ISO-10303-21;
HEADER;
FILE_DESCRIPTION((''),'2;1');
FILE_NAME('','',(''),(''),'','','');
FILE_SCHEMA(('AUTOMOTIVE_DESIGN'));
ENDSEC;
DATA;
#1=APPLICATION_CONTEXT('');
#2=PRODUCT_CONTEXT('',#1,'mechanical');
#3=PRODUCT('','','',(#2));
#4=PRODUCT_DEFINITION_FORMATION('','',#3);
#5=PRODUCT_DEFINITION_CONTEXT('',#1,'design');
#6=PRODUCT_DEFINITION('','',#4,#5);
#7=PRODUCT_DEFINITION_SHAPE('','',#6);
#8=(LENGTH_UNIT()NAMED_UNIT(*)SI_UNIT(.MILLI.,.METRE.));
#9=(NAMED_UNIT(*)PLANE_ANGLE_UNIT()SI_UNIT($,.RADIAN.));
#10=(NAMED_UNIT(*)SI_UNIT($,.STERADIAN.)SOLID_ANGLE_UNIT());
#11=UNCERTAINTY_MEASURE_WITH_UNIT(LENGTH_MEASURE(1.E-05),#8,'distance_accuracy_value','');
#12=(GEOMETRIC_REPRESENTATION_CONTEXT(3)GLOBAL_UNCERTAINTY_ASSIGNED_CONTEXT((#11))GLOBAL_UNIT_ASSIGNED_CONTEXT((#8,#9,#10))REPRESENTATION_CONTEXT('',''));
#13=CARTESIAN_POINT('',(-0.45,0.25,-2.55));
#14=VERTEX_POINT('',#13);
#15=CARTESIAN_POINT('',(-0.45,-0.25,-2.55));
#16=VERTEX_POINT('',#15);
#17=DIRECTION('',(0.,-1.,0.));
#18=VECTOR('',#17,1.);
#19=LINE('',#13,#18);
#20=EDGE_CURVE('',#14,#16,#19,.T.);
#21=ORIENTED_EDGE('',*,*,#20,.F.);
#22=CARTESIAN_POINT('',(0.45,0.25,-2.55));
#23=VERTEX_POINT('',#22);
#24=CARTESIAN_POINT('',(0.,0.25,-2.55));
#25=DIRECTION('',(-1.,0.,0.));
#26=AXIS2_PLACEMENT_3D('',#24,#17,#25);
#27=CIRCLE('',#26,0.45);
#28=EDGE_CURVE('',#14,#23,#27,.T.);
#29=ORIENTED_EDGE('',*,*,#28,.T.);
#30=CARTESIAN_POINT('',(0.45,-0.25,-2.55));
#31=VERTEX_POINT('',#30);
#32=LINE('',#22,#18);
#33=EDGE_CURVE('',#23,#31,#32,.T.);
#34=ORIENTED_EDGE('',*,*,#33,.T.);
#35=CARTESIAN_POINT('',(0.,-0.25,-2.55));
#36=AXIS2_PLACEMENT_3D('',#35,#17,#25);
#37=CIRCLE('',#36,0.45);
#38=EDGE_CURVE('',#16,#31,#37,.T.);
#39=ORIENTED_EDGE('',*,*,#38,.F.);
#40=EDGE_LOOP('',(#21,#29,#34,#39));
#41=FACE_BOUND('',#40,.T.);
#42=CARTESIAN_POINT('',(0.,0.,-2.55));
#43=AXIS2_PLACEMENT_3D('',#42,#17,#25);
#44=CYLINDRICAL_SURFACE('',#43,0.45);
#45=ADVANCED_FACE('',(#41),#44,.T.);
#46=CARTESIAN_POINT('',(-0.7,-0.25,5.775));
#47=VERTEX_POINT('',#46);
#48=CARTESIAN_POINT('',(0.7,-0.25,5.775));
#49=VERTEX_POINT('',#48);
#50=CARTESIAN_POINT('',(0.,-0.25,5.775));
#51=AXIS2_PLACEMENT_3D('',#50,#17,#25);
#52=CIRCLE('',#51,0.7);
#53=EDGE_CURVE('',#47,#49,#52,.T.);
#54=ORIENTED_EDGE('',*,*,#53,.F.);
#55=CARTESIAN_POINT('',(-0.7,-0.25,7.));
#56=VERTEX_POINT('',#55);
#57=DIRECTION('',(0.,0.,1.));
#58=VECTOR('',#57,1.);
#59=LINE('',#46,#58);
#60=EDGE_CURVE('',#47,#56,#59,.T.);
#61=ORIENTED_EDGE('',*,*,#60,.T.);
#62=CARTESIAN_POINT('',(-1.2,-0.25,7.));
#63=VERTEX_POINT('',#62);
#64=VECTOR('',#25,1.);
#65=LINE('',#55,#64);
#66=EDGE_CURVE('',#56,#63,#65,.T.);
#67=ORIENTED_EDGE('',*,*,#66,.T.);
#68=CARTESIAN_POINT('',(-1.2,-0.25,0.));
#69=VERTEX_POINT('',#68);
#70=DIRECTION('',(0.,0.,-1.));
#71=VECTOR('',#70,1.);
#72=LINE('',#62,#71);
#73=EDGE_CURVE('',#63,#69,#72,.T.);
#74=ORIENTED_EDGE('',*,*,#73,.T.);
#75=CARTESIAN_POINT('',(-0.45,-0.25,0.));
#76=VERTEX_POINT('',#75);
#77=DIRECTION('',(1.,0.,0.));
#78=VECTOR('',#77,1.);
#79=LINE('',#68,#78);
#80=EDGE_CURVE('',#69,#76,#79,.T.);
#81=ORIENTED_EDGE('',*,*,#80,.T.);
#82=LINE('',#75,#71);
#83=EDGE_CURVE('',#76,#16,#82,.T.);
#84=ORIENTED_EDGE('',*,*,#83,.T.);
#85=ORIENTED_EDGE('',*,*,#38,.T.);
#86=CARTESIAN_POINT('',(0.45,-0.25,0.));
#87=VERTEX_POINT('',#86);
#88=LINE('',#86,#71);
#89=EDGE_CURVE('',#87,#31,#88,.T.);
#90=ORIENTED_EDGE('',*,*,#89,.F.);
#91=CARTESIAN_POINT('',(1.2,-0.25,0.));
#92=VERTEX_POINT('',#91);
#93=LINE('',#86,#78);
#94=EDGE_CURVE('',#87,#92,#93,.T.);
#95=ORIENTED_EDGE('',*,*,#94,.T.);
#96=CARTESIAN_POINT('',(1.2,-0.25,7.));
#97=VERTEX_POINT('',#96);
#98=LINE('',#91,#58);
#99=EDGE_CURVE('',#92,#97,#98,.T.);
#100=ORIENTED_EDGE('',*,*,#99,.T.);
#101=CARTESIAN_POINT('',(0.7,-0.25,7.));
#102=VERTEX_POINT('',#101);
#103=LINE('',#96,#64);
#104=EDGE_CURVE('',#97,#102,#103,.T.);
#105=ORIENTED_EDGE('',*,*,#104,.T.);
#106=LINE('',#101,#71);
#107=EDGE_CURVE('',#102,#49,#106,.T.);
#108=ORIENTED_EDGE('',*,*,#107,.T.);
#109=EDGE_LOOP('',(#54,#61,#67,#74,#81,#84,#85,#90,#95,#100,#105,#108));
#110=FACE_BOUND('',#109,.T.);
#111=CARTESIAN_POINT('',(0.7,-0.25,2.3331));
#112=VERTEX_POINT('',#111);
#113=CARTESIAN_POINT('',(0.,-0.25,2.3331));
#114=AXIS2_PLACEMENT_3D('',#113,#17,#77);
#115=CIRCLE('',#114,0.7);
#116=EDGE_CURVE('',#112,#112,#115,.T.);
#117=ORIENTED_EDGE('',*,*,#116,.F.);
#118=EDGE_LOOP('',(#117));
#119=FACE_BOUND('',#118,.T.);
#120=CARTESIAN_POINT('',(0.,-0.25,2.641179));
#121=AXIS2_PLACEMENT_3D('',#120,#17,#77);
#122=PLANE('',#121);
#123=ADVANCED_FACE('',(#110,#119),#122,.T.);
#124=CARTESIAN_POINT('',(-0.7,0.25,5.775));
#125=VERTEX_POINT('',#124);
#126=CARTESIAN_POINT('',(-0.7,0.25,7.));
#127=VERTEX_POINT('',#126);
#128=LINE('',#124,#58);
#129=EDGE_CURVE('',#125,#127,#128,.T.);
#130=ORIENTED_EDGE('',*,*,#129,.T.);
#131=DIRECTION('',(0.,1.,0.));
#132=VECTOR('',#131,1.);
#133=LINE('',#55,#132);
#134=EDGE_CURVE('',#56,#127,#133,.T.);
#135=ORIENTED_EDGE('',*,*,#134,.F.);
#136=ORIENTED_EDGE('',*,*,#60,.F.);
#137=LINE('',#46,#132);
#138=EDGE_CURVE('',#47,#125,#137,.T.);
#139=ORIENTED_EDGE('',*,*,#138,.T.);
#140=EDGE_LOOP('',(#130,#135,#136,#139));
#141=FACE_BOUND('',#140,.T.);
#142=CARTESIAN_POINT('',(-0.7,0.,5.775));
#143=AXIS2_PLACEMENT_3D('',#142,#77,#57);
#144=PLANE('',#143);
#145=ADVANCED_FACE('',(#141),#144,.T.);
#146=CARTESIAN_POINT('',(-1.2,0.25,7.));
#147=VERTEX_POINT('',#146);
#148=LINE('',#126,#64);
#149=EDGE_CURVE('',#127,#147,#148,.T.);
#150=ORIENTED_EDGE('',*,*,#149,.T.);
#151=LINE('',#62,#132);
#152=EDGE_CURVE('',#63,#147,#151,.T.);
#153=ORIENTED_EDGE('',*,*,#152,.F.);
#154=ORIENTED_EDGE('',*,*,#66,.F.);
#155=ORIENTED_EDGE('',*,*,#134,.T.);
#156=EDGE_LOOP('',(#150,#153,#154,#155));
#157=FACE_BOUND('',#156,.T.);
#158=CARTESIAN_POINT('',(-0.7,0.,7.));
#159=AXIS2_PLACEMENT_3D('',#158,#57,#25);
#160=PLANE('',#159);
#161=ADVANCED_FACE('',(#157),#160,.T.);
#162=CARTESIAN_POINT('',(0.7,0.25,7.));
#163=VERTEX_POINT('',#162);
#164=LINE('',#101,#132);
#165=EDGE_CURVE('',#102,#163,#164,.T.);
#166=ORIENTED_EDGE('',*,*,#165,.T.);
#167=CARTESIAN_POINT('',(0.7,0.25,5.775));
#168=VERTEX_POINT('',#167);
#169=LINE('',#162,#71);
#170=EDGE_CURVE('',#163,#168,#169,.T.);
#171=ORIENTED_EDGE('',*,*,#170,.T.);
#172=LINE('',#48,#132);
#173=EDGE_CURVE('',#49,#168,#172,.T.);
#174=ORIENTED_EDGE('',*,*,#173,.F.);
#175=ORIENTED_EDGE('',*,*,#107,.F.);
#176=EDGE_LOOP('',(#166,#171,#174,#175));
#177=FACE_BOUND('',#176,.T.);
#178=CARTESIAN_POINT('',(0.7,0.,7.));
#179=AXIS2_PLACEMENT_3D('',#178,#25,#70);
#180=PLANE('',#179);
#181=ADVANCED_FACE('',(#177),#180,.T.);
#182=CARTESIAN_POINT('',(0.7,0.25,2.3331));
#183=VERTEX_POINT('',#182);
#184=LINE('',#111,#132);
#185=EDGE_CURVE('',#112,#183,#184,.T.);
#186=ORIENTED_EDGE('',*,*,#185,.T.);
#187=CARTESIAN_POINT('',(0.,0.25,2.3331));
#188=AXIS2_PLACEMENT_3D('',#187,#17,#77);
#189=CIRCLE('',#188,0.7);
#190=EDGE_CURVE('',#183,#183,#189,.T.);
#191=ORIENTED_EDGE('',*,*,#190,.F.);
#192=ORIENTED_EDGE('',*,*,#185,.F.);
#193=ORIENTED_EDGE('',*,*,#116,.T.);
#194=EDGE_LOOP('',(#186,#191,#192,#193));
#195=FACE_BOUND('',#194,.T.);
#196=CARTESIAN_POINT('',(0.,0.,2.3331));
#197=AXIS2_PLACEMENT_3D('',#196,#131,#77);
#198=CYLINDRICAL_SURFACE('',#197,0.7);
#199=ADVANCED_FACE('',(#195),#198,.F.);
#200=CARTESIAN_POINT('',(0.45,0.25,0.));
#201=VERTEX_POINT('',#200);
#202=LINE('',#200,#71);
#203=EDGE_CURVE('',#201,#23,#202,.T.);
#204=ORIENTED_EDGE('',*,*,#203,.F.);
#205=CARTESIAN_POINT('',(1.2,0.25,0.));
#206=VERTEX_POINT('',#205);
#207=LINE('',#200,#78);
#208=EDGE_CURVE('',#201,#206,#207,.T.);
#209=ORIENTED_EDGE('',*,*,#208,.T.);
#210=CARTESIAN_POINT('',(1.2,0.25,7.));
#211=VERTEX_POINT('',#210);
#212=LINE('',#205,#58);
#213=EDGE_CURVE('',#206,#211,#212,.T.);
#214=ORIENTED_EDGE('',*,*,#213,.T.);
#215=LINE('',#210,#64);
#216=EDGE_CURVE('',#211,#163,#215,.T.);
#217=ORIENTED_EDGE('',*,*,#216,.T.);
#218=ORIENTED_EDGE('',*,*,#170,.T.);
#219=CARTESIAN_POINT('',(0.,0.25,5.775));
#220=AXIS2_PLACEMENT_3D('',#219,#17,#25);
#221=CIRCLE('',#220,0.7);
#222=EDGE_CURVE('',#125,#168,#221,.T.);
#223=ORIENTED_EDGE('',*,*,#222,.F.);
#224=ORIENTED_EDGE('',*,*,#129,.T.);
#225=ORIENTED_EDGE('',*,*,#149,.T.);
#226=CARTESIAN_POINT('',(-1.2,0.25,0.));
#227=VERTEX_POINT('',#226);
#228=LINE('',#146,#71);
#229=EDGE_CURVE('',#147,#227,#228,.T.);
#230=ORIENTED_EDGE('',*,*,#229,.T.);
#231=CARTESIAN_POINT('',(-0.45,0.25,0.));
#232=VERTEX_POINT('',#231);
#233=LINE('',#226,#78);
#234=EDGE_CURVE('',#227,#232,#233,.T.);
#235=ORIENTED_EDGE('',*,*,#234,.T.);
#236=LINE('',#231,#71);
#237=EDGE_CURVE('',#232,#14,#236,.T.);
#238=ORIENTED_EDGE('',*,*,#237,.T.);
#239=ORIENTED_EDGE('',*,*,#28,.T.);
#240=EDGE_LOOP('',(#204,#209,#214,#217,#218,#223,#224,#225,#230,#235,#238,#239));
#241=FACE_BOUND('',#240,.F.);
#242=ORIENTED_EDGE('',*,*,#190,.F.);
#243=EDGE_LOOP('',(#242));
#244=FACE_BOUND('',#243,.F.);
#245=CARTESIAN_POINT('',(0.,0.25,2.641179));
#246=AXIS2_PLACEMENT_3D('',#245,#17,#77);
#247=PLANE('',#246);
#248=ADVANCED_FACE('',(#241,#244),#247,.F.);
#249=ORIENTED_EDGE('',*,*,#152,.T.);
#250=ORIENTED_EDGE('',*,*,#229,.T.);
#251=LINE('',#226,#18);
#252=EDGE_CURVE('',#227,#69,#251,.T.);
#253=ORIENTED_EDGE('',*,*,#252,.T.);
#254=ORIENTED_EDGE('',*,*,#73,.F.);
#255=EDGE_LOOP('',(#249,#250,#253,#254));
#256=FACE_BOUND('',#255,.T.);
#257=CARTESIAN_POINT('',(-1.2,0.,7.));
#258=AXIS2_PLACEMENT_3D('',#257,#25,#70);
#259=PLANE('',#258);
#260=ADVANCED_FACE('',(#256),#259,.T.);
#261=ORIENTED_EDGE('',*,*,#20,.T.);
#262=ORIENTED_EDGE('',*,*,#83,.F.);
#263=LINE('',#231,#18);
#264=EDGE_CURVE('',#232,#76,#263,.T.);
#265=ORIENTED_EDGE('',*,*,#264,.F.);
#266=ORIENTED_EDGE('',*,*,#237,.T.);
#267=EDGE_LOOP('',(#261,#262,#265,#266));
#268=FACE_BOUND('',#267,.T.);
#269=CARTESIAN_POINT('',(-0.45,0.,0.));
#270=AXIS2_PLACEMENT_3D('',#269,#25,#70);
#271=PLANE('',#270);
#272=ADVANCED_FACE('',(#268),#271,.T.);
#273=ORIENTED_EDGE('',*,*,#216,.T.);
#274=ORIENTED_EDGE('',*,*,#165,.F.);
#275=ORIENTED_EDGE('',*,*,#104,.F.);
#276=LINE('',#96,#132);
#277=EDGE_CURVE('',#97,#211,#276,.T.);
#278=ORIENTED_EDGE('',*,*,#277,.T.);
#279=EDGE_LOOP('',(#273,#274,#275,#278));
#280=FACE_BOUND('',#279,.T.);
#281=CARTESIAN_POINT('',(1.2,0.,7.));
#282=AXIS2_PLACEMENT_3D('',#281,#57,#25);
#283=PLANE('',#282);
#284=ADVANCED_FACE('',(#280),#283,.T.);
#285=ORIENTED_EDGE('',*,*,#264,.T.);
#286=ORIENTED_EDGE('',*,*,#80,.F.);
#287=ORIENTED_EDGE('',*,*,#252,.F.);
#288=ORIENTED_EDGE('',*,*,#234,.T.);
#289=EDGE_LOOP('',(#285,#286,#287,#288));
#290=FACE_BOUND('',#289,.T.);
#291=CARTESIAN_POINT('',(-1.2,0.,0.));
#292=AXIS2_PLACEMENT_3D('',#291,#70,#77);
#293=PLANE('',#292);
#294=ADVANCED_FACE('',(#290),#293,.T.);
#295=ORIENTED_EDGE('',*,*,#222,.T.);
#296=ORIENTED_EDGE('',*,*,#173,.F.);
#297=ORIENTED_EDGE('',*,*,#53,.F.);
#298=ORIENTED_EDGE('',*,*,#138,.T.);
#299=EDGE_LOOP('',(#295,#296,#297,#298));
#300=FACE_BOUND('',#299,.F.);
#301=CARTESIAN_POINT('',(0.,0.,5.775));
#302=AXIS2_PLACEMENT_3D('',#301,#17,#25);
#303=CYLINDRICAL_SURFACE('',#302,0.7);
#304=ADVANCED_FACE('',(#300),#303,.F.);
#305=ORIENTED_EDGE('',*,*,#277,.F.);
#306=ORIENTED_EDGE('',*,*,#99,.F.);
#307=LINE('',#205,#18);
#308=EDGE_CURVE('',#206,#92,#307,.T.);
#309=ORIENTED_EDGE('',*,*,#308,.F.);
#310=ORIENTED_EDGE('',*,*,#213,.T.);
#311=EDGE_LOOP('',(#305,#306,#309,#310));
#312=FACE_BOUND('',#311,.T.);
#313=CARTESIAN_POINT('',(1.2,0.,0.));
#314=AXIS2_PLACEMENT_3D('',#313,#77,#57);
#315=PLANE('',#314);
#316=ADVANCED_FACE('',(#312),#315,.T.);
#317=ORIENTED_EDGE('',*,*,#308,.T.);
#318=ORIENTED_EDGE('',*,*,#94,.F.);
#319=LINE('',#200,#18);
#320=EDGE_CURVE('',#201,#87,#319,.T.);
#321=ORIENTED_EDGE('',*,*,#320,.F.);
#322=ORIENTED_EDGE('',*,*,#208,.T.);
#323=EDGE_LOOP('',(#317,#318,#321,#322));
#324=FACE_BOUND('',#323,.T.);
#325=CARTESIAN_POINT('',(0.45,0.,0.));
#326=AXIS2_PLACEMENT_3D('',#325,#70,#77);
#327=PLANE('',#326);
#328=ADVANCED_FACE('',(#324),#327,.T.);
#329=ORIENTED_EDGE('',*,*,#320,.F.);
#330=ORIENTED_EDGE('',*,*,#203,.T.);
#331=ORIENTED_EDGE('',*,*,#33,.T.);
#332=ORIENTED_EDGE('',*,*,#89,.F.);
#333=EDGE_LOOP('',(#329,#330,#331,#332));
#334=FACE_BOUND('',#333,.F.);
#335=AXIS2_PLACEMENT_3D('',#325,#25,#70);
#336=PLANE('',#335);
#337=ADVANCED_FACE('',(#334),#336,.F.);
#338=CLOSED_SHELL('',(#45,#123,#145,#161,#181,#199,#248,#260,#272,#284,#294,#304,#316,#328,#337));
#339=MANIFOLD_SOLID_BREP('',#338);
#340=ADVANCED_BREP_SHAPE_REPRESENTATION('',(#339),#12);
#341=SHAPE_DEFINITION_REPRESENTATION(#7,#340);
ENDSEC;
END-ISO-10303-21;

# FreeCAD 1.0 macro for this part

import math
import FreeCAD as App
import Part
import Sketcher
from FreeCAD import Vector

doc = App.newDocument("Part")
body = doc.addObject("PartDesign::Body", "Body")

# Sketch on XZ plane
sketch1 = body.newObject("Sketcher::SketchObject", "Sketch")
sketch1.AttachmentSupport = (doc.getObject("XZ_Plane"), [""])
sketch1.MapMode = "FlatFace"
sketch1.addGeometry([
    Part.LineSegment(Vector(-1.2, 7, 0), Vector(-1.2, 0, 0)),  # 0
    Part.LineSegment(Vector(-1.2, 0, 0), Vector(-0.45, 0, 0)),  # 1
    Part.LineSegment(Vector(-0.45, 0, 0), Vector(-0.45, -2.55, 0)),  # 2
    Part.ArcOfCircle(Part.Circle(Vector(0, -2.55, 0), Vector(0, 0, 1), 0.45), math.radians(180), math.radians(360)),  # 3
    Part.LineSegment(Vector(0.45, -2.55, 0), Vector(0.45, 0, 0)),  # 4
    Part.LineSegment(Vector(0.45, 0, 0), Vector(1.2, 0, 0)),  # 5
    Part.LineSegment(Vector(1.2, 0, 0), Vector(1.2, 7, 0)),  # 6
    Part.LineSegment(Vector(1.2, 7, 0), Vector(0.7, 7, 0)),  # 7
    Part.LineSegment(Vector(0.7, 7, 0), Vector(0.7, 5.78, 0)),  # 8
    Part.ArcOfCircle(Part.Circle(Vector(0, 5.78, 0), Vector(0, 0, 1), 0.7), math.radians(180), math.radians(360)),  # 9
    Part.LineSegment(Vector(-0.7, 5.78, 0), Vector(-0.7, 7, 0)),  # 10
    Part.LineSegment(Vector(-0.7, 7, 0), Vector(-1.2, 7, 0)),  # 11
    Part.Circle(Vector(0, 2.33, 0), Vector(0, 0, 1), 0.7),  # 12
], False)
sketch1.addConstraint([
    Sketcher.Constraint("Coincident", 0, 2, 1, 1),
    Sketcher.Constraint("Coincident", 1, 2, 2, 1),
    Sketcher.Constraint("Tangent", 2, 2, 3, 1),
    Sketcher.Constraint("Tangent", 3, 2, 4, 1),
    Sketcher.Constraint("Coincident", 4, 2, 5, 1),
    Sketcher.Constraint("Coincident", 5, 2, 6, 1),
    Sketcher.Constraint("Coincident", 6, 2, 7, 1),
    Sketcher.Constraint("Coincident", 7, 2, 8, 1),
    Sketcher.Constraint("Tangent", 8, 2, 9, 2),
    Sketcher.Constraint("Tangent", 9, 1, 10, 1),
    Sketcher.Constraint("Coincident", 10, 2, 11, 1),
    Sketcher.Constraint("Coincident", 11, 2, 0, 1),
    Sketcher.Constraint("Vertical", 0),
    Sketcher.Constraint("Horizontal", 1),
    Sketcher.Constraint("Vertical", 2),
    Sketcher.Constraint("Vertical", 4),
    Sketcher.Constraint("Horizontal", 5),
    Sketcher.Constraint("Vertical", 6),
    Sketcher.Constraint("Horizontal", 7),
    Sketcher.Constraint("Vertical", 8),
    Sketcher.Constraint("Vertical", 10),
    Sketcher.Constraint("Horizontal", 11),
    Sketcher.Constraint("Equal", 9, 12),
    Sketcher.Constraint("Symmetric", 1, 2, 4, 2, -1, 1),
    Sketcher.Constraint("Symmetric", 0, 2, 5, 2, -2),
    Sketcher.Constraint("Symmetric", 7, 2, 10, 2, -2),
    Sketcher.Constraint("PointOnObject", 12, 3, -2),
    Sketcher.Constraint("Diameter", 12, 1.4),
    Sketcher.Constraint("DistanceY", 0, 2, 0, 1, 7.0),
    Sketcher.Constraint("Radius", 3, 0.45),
    Sketcher.Constraint("DistanceX", 7, 2, 7, 1, 0.5),
    Sketcher.Constraint("DistanceY", 2, 2, 2, 1, 2.55),
    Sketcher.Constraint("DistanceY", 8, 2, 8, 1, 1.225),
    Sketcher.Constraint("DistanceY", -1, 1, 12, 3, 2.3331),
])
pad1 = body.newObject("PartDesign::Pad", "Pad")
pad1.Profile = sketch1
pad1.Length = 0.5
pad1.Midplane = True

doc.recompute()
